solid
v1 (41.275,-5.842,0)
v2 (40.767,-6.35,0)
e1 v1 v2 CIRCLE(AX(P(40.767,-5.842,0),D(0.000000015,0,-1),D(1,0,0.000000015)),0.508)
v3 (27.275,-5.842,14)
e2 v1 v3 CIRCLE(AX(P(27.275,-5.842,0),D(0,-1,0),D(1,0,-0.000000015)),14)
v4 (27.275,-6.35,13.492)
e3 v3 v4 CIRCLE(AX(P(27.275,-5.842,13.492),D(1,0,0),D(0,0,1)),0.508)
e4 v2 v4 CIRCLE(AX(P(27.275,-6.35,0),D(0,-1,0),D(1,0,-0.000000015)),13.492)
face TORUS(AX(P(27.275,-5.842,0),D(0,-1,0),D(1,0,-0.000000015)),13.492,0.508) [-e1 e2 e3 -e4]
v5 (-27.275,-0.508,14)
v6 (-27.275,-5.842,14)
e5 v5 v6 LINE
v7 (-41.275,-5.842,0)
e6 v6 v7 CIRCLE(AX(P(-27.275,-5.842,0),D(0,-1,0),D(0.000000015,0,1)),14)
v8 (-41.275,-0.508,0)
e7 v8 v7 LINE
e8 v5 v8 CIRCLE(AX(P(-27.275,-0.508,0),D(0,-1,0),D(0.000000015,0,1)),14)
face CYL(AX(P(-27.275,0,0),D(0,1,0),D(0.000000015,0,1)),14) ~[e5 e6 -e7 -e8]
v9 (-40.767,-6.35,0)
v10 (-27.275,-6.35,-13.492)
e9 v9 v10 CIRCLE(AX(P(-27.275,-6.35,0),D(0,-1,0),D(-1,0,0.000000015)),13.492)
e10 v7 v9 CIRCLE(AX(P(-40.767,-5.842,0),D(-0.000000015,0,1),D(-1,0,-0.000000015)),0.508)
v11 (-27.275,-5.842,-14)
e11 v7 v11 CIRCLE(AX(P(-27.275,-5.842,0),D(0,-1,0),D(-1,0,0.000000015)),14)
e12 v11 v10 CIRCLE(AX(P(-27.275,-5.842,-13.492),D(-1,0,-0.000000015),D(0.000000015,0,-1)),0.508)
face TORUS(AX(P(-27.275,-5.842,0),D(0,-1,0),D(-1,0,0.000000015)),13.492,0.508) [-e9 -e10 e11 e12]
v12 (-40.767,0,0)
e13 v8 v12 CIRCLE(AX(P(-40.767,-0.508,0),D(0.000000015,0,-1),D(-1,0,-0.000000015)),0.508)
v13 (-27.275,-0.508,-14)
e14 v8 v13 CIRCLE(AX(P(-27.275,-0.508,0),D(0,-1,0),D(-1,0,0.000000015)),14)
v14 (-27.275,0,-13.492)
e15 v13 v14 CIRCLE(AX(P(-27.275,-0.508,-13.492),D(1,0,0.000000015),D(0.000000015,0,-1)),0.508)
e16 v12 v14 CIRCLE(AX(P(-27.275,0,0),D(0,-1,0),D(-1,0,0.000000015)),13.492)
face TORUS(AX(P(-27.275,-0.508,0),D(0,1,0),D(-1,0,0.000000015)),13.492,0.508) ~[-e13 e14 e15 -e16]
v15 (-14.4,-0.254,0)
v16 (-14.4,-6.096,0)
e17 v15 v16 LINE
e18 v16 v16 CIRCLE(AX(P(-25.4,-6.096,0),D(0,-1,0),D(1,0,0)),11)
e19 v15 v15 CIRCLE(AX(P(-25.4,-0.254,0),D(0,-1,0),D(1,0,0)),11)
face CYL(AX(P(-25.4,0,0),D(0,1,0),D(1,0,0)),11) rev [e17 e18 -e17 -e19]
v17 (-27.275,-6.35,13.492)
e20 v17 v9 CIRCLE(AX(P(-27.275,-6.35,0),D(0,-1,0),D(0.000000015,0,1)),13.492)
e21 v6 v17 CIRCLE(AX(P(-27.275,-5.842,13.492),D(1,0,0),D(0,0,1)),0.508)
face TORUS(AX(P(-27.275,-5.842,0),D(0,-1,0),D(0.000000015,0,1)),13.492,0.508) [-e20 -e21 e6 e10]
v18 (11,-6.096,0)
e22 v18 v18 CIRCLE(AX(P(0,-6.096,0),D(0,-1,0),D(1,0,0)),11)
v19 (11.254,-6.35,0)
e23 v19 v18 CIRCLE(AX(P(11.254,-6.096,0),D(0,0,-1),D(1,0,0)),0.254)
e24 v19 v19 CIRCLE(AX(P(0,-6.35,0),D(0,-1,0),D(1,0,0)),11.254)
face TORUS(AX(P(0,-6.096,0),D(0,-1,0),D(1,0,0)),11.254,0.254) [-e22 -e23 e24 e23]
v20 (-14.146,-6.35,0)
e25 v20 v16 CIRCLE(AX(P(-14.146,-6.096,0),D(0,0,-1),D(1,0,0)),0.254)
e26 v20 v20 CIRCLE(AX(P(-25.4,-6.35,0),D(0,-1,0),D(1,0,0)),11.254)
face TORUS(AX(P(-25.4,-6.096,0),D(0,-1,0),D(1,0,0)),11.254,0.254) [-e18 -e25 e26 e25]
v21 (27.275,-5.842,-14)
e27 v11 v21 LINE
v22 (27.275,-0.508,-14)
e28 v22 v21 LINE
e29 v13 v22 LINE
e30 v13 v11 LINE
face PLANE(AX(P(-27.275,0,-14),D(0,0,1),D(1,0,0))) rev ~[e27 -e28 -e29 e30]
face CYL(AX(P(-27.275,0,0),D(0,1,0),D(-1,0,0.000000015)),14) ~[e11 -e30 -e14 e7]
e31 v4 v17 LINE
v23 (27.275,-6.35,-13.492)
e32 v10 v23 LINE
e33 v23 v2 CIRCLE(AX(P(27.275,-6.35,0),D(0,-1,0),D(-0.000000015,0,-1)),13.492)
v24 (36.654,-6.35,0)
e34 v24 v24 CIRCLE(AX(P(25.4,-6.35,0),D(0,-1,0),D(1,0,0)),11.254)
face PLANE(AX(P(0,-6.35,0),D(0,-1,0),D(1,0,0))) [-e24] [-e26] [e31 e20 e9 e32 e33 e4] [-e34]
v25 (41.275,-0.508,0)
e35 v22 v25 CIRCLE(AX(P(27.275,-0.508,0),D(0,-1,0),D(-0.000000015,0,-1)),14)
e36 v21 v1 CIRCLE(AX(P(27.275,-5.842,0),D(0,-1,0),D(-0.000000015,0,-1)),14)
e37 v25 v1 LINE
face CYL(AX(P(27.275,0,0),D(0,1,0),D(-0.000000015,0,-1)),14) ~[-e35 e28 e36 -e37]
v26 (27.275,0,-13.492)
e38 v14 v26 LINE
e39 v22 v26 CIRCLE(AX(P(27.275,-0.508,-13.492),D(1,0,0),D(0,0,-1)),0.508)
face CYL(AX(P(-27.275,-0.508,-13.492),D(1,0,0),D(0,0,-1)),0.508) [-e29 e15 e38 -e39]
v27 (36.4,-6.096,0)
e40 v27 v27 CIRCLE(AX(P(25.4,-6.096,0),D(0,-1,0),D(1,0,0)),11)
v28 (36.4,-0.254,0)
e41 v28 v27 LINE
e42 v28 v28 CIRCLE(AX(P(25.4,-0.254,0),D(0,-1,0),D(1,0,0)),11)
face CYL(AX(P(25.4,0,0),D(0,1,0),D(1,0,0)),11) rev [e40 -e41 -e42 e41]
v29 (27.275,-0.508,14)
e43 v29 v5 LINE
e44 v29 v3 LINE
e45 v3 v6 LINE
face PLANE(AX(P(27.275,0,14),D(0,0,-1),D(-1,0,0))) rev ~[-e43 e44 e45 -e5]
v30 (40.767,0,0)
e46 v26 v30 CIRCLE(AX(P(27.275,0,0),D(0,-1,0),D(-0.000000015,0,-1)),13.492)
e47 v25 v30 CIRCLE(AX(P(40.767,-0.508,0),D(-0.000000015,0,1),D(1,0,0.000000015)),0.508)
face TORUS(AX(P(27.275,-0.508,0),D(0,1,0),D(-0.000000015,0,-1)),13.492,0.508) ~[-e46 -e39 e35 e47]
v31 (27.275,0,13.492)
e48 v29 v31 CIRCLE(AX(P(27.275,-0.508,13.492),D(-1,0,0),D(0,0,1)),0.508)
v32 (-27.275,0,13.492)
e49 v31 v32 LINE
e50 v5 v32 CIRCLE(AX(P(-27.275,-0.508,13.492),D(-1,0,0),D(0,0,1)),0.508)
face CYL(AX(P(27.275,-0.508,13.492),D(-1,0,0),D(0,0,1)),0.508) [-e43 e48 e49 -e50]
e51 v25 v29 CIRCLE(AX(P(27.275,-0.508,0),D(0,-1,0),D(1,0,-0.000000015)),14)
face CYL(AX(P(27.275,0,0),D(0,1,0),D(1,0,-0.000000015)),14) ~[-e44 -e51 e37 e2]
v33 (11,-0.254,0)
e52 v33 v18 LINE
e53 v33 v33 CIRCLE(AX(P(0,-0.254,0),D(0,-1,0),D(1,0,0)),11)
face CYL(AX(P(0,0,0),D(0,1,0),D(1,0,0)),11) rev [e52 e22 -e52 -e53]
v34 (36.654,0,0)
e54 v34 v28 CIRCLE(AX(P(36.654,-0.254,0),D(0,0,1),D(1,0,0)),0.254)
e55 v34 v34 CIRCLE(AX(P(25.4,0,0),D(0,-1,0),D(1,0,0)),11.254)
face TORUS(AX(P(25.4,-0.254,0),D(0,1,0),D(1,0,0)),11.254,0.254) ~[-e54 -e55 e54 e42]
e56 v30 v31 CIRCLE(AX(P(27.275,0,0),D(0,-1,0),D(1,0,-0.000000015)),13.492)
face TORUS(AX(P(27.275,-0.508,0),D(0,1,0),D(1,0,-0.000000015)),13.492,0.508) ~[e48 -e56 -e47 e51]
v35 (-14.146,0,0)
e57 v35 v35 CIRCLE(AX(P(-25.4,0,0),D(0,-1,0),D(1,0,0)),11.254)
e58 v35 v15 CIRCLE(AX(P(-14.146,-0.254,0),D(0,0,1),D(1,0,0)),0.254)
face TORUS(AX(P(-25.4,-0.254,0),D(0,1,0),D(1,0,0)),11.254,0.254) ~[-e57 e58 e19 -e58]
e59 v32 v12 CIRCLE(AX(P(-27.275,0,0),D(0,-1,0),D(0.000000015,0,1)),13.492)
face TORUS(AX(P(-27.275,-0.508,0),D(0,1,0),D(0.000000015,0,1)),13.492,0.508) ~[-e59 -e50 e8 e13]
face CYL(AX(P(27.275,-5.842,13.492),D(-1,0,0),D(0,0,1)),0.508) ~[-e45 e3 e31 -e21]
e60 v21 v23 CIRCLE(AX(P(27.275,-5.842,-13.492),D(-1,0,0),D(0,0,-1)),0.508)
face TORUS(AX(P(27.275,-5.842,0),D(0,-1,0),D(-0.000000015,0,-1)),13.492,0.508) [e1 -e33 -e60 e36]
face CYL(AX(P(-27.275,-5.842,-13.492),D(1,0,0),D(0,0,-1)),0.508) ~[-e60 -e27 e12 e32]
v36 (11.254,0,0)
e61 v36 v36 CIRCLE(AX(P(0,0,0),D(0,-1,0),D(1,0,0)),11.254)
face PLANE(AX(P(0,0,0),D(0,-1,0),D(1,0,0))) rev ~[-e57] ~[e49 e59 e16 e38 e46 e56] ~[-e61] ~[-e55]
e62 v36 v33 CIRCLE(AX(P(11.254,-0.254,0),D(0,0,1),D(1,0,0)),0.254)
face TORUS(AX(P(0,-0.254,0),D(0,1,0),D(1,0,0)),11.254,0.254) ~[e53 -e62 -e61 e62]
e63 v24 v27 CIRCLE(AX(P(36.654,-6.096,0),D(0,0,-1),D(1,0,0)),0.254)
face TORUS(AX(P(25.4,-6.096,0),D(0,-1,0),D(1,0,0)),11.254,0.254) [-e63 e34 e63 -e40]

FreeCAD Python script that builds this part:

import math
import FreeCAD as App
import Part
import Sketcher
from FreeCAD import Vector
Q = App.Units.Quantity


def edges_at(feature, points):
    """Names of the edges that pass closest to the given points."""
    edges = feature.Shape.Edges
    near = lambda p: min(range(len(edges)), key=lambda i: edges[i].distToShape(Part.Vertex(*p))[0])
    return sorted({f"Edge{near(p) + 1}" for p in points})

doc = App.newDocument("Part")
params = doc.addObject("Spreadsheet::Sheet", "Params")
for row, (alias, value) in enumerate([
    ("pad1_length", "0.25 in"),
    ("fillet_radius", "0.02 in"),
    ("fillet2_radius", "0.01 in"),
], start=1):
    params.set(f"A{row}", alias)
    params.set(f"B{row}", "=" + value)
    params.setAlias(f"B{row}", alias)

body = doc.addObject("PartDesign::Body", "Body")

# Sketch on XZ plane
sketch1 = body.newObject("Sketcher::SketchObject", "Sketch")
sketch1.AttachmentSupport = (doc.getObject("XZ_Plane"), [""])
sketch1.MapMode = "FlatFace"
sketch1.addGeometry([
    Part.LineSegment(Vector(-27, -14, 0), Vector(27, -14, 0)),  # 0
    Part.ArcOfCircle(Part.Circle(Vector(27, 0, 0), Vector(0, 0, 1), 14), math.radians(-90), math.radians(0)),  # 1
    Part.ArcOfCircle(Part.Circle(Vector(27, 0, 0), Vector(0, 0, 1), 14), math.radians(0), math.radians(90)),  # 2
    Part.LineSegment(Vector(27, 14, 0), Vector(-27, 14, 0)),  # 3
    Part.ArcOfCircle(Part.Circle(Vector(-27, 0, 0), Vector(0, 0, 1), 14), math.radians(90), math.radians(180)),  # 4
    Part.ArcOfCircle(Part.Circle(Vector(-27, 0, 0), Vector(0, 0, 1), 14), math.radians(180), math.radians(270)),  # 5
    Part.Circle(Vector(-25, 0, 0), Vector(0, 0, 1), 11),  # 6
    Part.Circle(Vector(0, 0, 0), Vector(0, 0, 1), 11),  # 7
    Part.Circle(Vector(25, 0, 0), Vector(0, 0, 1), 11),  # 8
], False)
sketch1.addConstraint([
    Sketcher.Constraint("Tangent", 0, 2, 1, 1),
    Sketcher.Constraint("Tangent", 1, 2, 2, 1),
    Sketcher.Constraint("Tangent", 2, 2, 3, 1),
    Sketcher.Constraint("Tangent", 3, 2, 4, 1),
    Sketcher.Constraint("Tangent", 4, 2, 5, 1),
    Sketcher.Constraint("Tangent", 5, 2, 0, 1),
    Sketcher.Constraint("Horizontal", 0),
    Sketcher.Constraint("Horizontal", 3),
    Sketcher.Constraint("Coincident", 7, 3, -1, 1),
    Sketcher.Constraint("Equal", 1, 2),
    Sketcher.Constraint("Equal", 2, 4),
    Sketcher.Constraint("Equal", 6, 7),
    Sketcher.Constraint("Equal", 7, 8),
    Sketcher.Constraint("Symmetric", 1, 3, 4, 3, -1, 1),
    Sketcher.Constraint("Symmetric", 6, 3, 8, 3, -1, 1),
    Sketcher.Constraint("PointOnObject", 6, 3, -1),
    Sketcher.Constraint("PointOnObject", 1, 2, -1),
    Sketcher.Constraint("PointOnObject", 4, 2, -1),
    Sketcher.Constraint("DistanceX", 6, 3, -1, 1, Q("1 in")),
    Sketcher.Constraint("Diameter", 6, 22.0),
    Sketcher.Constraint("Radius", 1, 14.0),
    Sketcher.Constraint("DistanceX", -1, 1, 1, 2, Q("1.625 in")),
])
pad1 = body.newObject("PartDesign::Pad", "Pad")
pad1.Profile = sketch1
pad1.setExpression("Length", "Params.pad1_length")
doc.recompute()

fillet = body.newObject("PartDesign::Fillet", "Fillet")
fillet.Base = (pad1, edges_at(pad1, [(0, -6.35, 14), (0, 0, 14)]))
fillet.setExpression("Radius", "Params.fillet_radius")
doc.recompute()

fillet2 = body.newObject("PartDesign::Fillet", "Fillet001")
fillet2.Base = (fillet, edges_at(fillet, [
    (14.4, -6.35, 0),
    (-11, -6.35, 0),
    (-36.4, -6.35, 0),
    (-36.4, 0, 0),
    (-11, 0, 0),
    (14.4, 0, 0),
]))
fillet2.setExpression("Radius", "Params.fillet2_radius")

doc.recompute()
